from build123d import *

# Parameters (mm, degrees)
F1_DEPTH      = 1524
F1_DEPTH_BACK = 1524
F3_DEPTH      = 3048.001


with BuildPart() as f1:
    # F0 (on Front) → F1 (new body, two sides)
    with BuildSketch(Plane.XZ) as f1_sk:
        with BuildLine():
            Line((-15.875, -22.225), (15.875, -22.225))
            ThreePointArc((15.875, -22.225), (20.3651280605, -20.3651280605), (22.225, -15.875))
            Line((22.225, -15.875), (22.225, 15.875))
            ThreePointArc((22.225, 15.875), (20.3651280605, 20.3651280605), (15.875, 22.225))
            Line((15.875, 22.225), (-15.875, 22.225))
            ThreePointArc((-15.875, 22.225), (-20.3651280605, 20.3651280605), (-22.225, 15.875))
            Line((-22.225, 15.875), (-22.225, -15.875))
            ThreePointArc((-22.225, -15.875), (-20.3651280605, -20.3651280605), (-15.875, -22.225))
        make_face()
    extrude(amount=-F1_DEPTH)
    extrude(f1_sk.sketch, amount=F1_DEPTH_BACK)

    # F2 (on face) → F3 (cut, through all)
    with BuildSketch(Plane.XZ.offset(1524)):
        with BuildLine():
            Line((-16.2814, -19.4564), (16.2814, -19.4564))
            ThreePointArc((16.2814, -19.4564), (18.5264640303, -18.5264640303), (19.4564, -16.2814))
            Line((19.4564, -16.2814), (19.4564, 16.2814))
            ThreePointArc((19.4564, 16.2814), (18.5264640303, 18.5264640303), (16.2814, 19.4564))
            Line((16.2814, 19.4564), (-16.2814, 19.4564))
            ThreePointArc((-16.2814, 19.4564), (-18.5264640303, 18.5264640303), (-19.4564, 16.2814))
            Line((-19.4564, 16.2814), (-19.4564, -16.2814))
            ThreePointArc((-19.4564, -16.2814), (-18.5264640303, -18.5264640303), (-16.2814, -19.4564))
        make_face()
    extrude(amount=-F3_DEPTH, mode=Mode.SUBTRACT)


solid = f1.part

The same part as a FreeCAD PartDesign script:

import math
import FreeCAD as App
import Part
import Sketcher
Q = App.Units.Quantity

doc = App.newDocument("Part")
params = doc.addObject("Spreadsheet::Sheet", "Params")
for row, (alias, value) in enumerate([
    ("sketch1_radius", "0.25 in"),
    ("sketch1_width", "1.25 in"),
    ("pad1_length", "60 in"),
    ("pad1_length2", "60 in"),
    ("sketch2_radius", "0.125 in"),
    ("sketch2_width", "1.282 in"),
], start=1):
    params.set(f"A{row}", alias)
    params.set(f"B{row}", "=" + value)
    params.setAlias(f"B{row}", alias)

body = doc.addObject("PartDesign::Body", "Body")

# Sketch on XZ plane
sketch1 = body.newObject("Sketcher::SketchObject", "Sketch")
sketch1.AttachmentSupport = (doc.getObject("XZ_Plane"), [""])
sketch1.MapMode = "FlatFace"
sketch1.addGeometry([
    Part.LineSegment(App.Vector(-15.875, -22.225, 0), App.Vector(15.875, -22.225, 0)),  # 0
    Part.ArcOfCircle(Part.Circle(App.Vector(15.875, -15.875, 0), App.Vector(0, 0, 1), 6.35), math.radians(-90), math.radians(0)),  # 1
    Part.LineSegment(App.Vector(22.225, -15.875, 0), App.Vector(22.225, 15.875, 0)),  # 2
    Part.ArcOfCircle(Part.Circle(App.Vector(15.875, 15.875, 0), App.Vector(0, 0, 1), 6.35), math.radians(0), math.radians(90)),  # 3
    Part.LineSegment(App.Vector(15.875, 22.225, 0), App.Vector(-15.875, 22.225, 0)),  # 4
    Part.ArcOfCircle(Part.Circle(App.Vector(-15.875, 15.875, 0), App.Vector(0, 0, 1), 6.35), math.radians(90), math.radians(180)),  # 5
    Part.LineSegment(App.Vector(-22.225, 15.875, 0), App.Vector(-22.225, -15.875, 0)),  # 6
    Part.ArcOfCircle(Part.Circle(App.Vector(-15.875, -15.875, 0), App.Vector(0, 0, 1), 6.35), math.radians(180), math.radians(270)),  # 7
], False)
sketch1.addConstraint([
    Sketcher.Constraint("Tangent", 0, 2, 1, 1),
    Sketcher.Constraint("Tangent", 1, 2, 2, 1),
    Sketcher.Constraint("Tangent", 2, 2, 3, 1),
    Sketcher.Constraint("Tangent", 3, 2, 4, 1),
    Sketcher.Constraint("Tangent", 4, 2, 5, 1),
    Sketcher.Constraint("Tangent", 5, 2, 6, 1),
    Sketcher.Constraint("Tangent", 6, 2, 7, 1),
    Sketcher.Constraint("Tangent", 7, 2, 0, 1),
    Sketcher.Constraint("Horizontal", 0),
    Sketcher.Constraint("Vertical", 2),
    Sketcher.Constraint("Horizontal", 4),
    Sketcher.Constraint("Vertical", 6),
    Sketcher.Constraint("Equal", 1, 3),
    Sketcher.Constraint("Equal", 3, 5),
    Sketcher.Constraint("Equal", 5, 7),
    Sketcher.Constraint("Symmetric", 1, 3, 5, 3, -1, 1),
    Sketcher.Constraint("Equal", 4, 2),
    Sketcher.Constraint("Radius", 1, Q("0.25 in")),
    Sketcher.Constraint("DistanceX", 0, 1, 0, 2, Q("1.25 in")),
])
sketch1.setExpression("Constraints[17]", "Params.sketch1_radius")
sketch1.setExpression("Constraints[18]", "Params.sketch1_width")
pad1 = body.newObject("PartDesign::Pad", "Pad")
pad1.Profile = sketch1
pad1.Type = "TwoLengths"
pad1.setExpression("Length", "Params.pad1_length")
pad1.setExpression("Length2", "Params.pad1_length2")
pad1.Reversed = True

# Sketch on XZ plane
sketch2 = body.newObject("Sketcher::SketchObject", "Sketch001")
sketch2.AttachmentSupport = (doc.getObject("XZ_Plane"), [""])
sketch2.MapMode = "FlatFace"
sketch2.AttachmentOffset = App.Placement(App.Vector(0, 0, 60 * 25.4), App.Rotation())
sketch2.addGeometry([
    Part.LineSegment(App.Vector(-16.2814, -19.4564, 0), App.Vector(16.2814, -19.4564, 0)),  # 0
    Part.ArcOfCircle(Part.Circle(App.Vector(16.2814, -16.2814, 0), App.Vector(0, 0, 1), 3.175), math.radians(-90), math.radians(0)),  # 1
    Part.LineSegment(App.Vector(19.4564, -16.2814, 0), App.Vector(19.4564, 16.2814, 0)),  # 2
    Part.ArcOfCircle(Part.Circle(App.Vector(16.2814, 16.2814, 0), App.Vector(0, 0, 1), 3.175), math.radians(0), math.radians(90)),  # 3
    Part.LineSegment(App.Vector(16.2814, 19.4564, 0), App.Vector(-16.2814, 19.4564, 0)),  # 4
    Part.ArcOfCircle(Part.Circle(App.Vector(-16.2814, 16.2814, 0), App.Vector(0, 0, 1), 3.175), math.radians(90), math.radians(180)),  # 5
    Part.LineSegment(App.Vector(-19.4564, 16.2814, 0), App.Vector(-19.4564, -16.2814, 0)),  # 6
    Part.ArcOfCircle(Part.Circle(App.Vector(-16.2814, -16.2814, 0), App.Vector(0, 0, 1), 3.175), math.radians(180), math.radians(270)),  # 7
], False)
sketch2.addConstraint([
    Sketcher.Constraint("Tangent", 0, 2, 1, 1),
    Sketcher.Constraint("Tangent", 1, 2, 2, 1),
    Sketcher.Constraint("Tangent", 2, 2, 3, 1),
    Sketcher.Constraint("Tangent", 3, 2, 4, 1),
    Sketcher.Constraint("Tangent", 4, 2, 5, 1),
    Sketcher.Constraint("Tangent", 5, 2, 6, 1),
    Sketcher.Constraint("Tangent", 6, 2, 7, 1),
    Sketcher.Constraint("Tangent", 7, 2, 0, 1),
    Sketcher.Constraint("Horizontal", 0),
    Sketcher.Constraint("Vertical", 2),
    Sketcher.Constraint("Horizontal", 4),
    Sketcher.Constraint("Vertical", 6),
    Sketcher.Constraint("Equal", 1, 3),
    Sketcher.Constraint("Equal", 3, 5),
    Sketcher.Constraint("Equal", 5, 7),
    Sketcher.Constraint("Symmetric", 1, 3, 5, 3, -1, 1),
    Sketcher.Constraint("Equal", 4, 2),
    Sketcher.Constraint("Radius", 1, Q("0.125 in")),
    Sketcher.Constraint("DistanceX", 0, 1, 0, 2, Q("1.282 in")),
])
sketch2.setExpression("Constraints[17]", "Params.sketch2_radius")
sketch2.setExpression("Constraints[18]", "Params.sketch2_width")
pocket1 = body.newObject("PartDesign::Pocket", "Pocket")
pocket1.Profile = sketch2
pocket1.Type = "ThroughAll"

doc.recompute()
